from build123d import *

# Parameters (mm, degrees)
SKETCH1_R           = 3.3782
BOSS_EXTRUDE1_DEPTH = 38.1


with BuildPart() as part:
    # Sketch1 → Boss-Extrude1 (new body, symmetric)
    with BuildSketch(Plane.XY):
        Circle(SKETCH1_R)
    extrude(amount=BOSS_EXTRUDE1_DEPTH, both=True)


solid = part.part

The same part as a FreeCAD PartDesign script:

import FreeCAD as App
import Part
import Sketcher
from FreeCAD import Vector
Q = App.Units.Quantity

doc = App.newDocument("Part")
body = doc.addObject("PartDesign::Body", "Body")

# Sketch on XY plane
sketch1 = body.newObject("Sketcher::SketchObject", "Sketch")
sketch1.AttachmentSupport = (doc.getObject("XY_Plane"), [""])
sketch1.MapMode = "FlatFace"
sketch1.addGeometry(Part.Circle(Vector(0, 0, 0), Vector(0, 0, 1), 3.4), False)
sketch1.addConstraint([
    Sketcher.Constraint("Coincident", 0, 3, -1, 1),
    Sketcher.Constraint("Diameter", 0, Q("0.266 in")),
])
pad1 = body.newObject("PartDesign::Pad", "Pad")
pad1.Profile = sketch1
pad1.Length = Q("3 in")
pad1.Midplane = True

doc.recompute()
